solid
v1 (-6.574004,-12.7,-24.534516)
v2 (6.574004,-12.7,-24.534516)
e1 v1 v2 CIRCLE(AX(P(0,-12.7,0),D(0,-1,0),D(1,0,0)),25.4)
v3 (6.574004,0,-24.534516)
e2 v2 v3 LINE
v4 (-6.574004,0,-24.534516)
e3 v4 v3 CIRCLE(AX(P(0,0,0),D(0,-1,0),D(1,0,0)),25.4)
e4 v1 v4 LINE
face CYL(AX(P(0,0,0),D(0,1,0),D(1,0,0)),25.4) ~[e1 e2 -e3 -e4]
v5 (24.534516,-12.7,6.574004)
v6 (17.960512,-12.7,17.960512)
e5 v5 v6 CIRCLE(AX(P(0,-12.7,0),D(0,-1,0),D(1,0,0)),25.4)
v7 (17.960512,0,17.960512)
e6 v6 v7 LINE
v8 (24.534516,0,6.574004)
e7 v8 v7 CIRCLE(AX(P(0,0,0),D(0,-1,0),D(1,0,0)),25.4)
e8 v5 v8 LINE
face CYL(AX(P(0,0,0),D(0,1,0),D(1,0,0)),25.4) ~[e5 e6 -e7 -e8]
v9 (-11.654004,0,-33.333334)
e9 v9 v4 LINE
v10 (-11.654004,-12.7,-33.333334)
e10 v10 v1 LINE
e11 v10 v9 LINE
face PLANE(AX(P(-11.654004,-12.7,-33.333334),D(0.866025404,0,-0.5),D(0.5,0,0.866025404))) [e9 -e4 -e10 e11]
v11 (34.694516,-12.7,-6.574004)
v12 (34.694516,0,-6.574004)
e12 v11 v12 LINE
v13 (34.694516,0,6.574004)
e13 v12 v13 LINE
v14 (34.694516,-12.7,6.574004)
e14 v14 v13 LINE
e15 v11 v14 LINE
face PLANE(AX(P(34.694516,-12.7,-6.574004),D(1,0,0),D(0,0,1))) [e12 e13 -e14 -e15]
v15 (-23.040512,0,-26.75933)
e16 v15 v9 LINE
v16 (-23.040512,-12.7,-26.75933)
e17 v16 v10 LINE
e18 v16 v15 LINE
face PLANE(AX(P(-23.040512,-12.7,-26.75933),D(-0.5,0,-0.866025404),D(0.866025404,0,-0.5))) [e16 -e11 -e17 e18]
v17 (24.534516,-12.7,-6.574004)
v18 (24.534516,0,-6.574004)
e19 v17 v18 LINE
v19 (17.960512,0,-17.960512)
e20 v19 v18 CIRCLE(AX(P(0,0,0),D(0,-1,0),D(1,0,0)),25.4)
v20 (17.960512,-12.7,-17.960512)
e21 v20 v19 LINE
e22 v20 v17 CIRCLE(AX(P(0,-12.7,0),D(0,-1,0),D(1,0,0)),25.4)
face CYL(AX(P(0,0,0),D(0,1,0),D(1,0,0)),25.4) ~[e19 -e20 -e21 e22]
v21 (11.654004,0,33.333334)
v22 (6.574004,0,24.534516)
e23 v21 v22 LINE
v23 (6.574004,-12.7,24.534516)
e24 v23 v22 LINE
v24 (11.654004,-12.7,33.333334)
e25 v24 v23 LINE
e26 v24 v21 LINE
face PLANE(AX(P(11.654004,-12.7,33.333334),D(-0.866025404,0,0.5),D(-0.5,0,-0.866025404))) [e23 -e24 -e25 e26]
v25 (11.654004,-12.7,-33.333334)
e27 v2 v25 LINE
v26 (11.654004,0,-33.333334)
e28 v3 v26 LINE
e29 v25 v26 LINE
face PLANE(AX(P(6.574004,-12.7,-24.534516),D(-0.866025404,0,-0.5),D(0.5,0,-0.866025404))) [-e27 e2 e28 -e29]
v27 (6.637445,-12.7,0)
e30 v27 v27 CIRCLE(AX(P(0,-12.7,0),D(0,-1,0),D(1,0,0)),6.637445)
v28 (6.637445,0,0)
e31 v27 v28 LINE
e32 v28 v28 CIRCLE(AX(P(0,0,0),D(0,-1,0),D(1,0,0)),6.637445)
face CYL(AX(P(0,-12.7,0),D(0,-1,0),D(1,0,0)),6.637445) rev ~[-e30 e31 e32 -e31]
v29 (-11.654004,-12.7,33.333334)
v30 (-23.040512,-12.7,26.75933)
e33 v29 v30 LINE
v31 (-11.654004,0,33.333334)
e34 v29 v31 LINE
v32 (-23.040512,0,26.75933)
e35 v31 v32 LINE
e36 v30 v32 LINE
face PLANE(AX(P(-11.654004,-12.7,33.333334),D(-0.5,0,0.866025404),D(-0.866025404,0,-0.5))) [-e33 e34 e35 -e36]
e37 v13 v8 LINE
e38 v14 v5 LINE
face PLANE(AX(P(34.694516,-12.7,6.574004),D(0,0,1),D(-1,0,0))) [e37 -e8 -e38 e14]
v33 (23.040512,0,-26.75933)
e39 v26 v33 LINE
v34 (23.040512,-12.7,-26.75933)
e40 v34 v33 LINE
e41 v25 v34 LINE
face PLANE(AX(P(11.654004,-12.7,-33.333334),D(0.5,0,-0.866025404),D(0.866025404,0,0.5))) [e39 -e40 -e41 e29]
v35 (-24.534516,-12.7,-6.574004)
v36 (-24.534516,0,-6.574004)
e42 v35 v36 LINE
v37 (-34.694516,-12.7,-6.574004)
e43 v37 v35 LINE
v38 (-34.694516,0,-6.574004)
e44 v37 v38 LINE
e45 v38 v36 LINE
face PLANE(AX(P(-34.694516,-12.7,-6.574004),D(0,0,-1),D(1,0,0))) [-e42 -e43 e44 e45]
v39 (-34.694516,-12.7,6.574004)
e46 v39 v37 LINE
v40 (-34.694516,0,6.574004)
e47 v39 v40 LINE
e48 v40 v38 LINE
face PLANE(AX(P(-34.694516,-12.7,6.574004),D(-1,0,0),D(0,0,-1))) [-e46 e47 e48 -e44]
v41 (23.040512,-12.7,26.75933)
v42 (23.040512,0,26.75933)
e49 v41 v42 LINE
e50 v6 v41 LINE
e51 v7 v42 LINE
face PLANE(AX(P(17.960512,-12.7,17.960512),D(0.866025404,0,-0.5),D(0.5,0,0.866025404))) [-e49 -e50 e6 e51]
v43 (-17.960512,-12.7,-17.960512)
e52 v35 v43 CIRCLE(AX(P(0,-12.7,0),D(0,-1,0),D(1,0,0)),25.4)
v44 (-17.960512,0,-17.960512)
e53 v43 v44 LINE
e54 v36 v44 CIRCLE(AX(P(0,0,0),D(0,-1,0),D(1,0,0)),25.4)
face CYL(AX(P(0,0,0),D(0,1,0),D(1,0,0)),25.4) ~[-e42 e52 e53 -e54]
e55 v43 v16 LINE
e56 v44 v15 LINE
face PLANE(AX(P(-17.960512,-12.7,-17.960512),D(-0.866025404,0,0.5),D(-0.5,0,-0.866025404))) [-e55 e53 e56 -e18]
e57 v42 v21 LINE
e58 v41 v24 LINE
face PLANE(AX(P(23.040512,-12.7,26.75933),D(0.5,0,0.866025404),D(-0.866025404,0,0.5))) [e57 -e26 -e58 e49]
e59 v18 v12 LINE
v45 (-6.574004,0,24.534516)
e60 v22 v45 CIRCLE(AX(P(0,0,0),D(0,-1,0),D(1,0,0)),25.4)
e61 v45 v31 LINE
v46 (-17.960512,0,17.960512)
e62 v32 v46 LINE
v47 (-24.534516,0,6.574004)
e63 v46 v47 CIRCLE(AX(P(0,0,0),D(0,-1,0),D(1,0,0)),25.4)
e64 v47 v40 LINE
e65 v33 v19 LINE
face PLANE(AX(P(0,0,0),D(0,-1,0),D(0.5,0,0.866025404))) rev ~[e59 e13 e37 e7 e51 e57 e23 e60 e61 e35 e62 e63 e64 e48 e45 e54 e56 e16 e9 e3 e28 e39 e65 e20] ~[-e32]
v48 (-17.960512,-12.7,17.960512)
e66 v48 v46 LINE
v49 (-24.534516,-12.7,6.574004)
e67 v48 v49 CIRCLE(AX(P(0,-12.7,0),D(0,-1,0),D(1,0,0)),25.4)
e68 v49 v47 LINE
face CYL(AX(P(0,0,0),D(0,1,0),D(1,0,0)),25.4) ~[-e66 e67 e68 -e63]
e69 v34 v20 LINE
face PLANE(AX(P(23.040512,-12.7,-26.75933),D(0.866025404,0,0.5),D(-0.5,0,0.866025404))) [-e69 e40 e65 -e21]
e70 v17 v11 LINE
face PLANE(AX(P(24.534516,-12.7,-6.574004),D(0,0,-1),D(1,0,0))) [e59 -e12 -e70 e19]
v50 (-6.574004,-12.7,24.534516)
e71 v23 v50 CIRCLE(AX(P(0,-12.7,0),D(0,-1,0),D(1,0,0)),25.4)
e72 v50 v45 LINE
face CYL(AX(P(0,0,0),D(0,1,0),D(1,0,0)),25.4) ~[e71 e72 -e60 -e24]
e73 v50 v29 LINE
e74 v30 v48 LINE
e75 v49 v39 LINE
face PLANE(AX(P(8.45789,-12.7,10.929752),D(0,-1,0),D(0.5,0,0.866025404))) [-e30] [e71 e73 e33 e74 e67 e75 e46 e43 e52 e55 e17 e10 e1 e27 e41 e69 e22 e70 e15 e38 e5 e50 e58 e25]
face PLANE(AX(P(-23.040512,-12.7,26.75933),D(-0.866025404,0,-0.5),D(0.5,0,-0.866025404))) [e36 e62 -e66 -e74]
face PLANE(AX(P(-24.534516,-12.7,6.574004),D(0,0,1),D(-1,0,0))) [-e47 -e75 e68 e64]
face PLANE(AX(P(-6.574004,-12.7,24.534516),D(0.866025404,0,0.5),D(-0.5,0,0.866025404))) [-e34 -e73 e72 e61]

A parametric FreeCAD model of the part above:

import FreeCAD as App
import Part
import Sketcher
from FreeCAD import Vector
Q = App.Units.Quantity


def add_polygon(sketch, points):
    """Adds a closed chain of lines whose ends are joined by coincident constraints."""
    first, n = sketch.GeometryCount, len(points)
    for a, b in zip(points, points[1:] + points[:1]):
        sketch.addGeometry(Part.LineSegment(App.Vector(*a, 0), App.Vector(*b, 0)), False)
    for i in range(n):
        sketch.addConstraint(Sketcher.Constraint("Coincident", first + i, 2, first + (i + 1) % n, 1))

doc = App.newDocument("Part")
params = doc.addObject("Spreadsheet::Sheet", "Params")
for row, (alias, value) in enumerate([
    ("sketch1_diameter", "2 in"),
    ("pad1_length", "0.5 in"),
    ("sketch2_length", "1 in"),
    ("sketch2_width", "0.4 in"),
    ("pad2_length", "0.5 in"),
], start=1):
    params.set(f"A{row}", alias)
    params.set(f"B{row}", "=" + value)
    params.setAlias(f"B{row}", alias)

body = doc.addObject("PartDesign::Body", "Body")

sketch1 = body.newObject("Sketcher::SketchObject", "Sketch")
sketch1.AttachmentSupport = (doc.getObject("XZ_Plane"), [""])
sketch1.MapMode = "FlatFace"
sketch1.addGeometry(Part.Circle(Vector(0, 0, 0), Vector(0, 0, 1), 25), False)
sketch1.addConstraint([
    Sketcher.Constraint("Coincident", 0, 3, -1, 1),
    Sketcher.Constraint("Diameter", 0, Q("2 in")),
])
sketch1.setExpression("Constraints[1]", "Params.sketch1_diameter")
pad1 = body.newObject("PartDesign::Pad", "Pad")
pad1.Profile = sketch1
pad1.setExpression("Length", "Params.pad1_length")

sketch2 = body.newObject("Sketcher::SketchObject", "Sketch001")
sketch2.AttachmentSupport = (doc.getObject("XZ_Plane"), [""])
sketch2.MapMode = "FlatFace"
sketch2.AttachmentOffset = App.Placement(Vector(0, 0, 0.5 * 25.4), App.Rotation())
add_polygon(sketch2, [(0, 0), (25, -7), (35, -7), (35, 7), (25, 7)])
sketch2.addConstraint([
    Sketcher.Constraint("Horizontal", 1),
    Sketcher.Constraint("Vertical", 2),
    Sketcher.Constraint("Horizontal", 3),
    Sketcher.Constraint("Coincident", 4, 2, -1, 1),
    Sketcher.Constraint("Symmetric", 0, 2, 3, 2, -1),
    Sketcher.Constraint("Distance", 0, Q("1 in")),
    Sketcher.Constraint("DistanceX", 1, 1, 1, 2, Q("0.4 in")),
    Sketcher.Constraint("Angle", 0, Q("-15.000001 deg")),
])
sketch2.setExpression("Constraints[10]", "Params.sketch2_length")
sketch2.setExpression("Constraints[11]", "Params.sketch2_width")
pad2 = body.newObject("PartDesign::Pad", "Pad001")
pad2.Profile = sketch2
pad2.setExpression("Length", "Params.pad2_length")
pad2.Reversed = True
body2 = doc.addObject("PartDesign::Body", "Body001")
doc.recompute()

body2.BaseFeature = body
doc.recompute()

body3 = doc.addObject("PartDesign::Body", "Body002")
body3.BaseFeature = body
body3.Placement = App.Placement(Vector(0, 0, 0), App.Rotation(Vector(0, 1, 0), 60))
boolean = body2.newObject("PartDesign::Boolean", "Boolean")
boolean.Type = "Fuse"
boolean.addObjects([body3])
doc.recompute()

body4 = doc.addObject("PartDesign::Body", "Body003")
body4.BaseFeature = body
body4.Placement = App.Placement(Vector(0, 0, 0), App.Rotation(Vector(0, 1, 0), 120))
boolean2 = body2.newObject("PartDesign::Boolean", "Boolean001")
boolean2.Type = "Fuse"
boolean2.addObjects([body4])
doc.recompute()

body5 = doc.addObject("PartDesign::Body", "Body004")
body5.BaseFeature = body
body5.Placement = App.Placement(Vector(0, 0, 0), App.Rotation(Vector(0, 1, 0), 180))
boolean3 = body2.newObject("PartDesign::Boolean", "Boolean002")
boolean3.Type = "Fuse"
boolean3.addObjects([body5])
doc.recompute()

body6 = doc.addObject("PartDesign::Body", "Body005")
body6.BaseFeature = body
body6.Placement = App.Placement(Vector(0, 0, 0), App.Rotation(Vector(0, 1, 0), 240))
boolean4 = body2.newObject("PartDesign::Boolean", "Boolean003")
boolean4.Type = "Fuse"
boolean4.addObjects([body6])
doc.recompute()

body.Placement = App.Placement(Vector(0, 0, 0), App.Rotation(Vector(0, 1, 0), 300))
boolean5 = body2.newObject("PartDesign::Boolean", "Boolean004")
boolean5.Type = "Fuse"
boolean5.addObjects([body])

sketch3 = body2.newObject("Sketcher::SketchObject", "Sketch002")
sketch3.AttachmentSupport = (doc.getObject("XZ_Plane001"), [""])
sketch3.MapMode = "FlatFace"
sketch3.AttachmentOffset = App.Placement(Vector(0, 0, 0.5 * 25.4), App.Rotation())
sketch3.addGeometry(Part.Circle(Vector(0, 0, 0), Vector(0, 0, 1), 7), False)
sketch3.addConstraint([
    Sketcher.Constraint("Coincident", 0, 3, -1, 1),
    Sketcher.Constraint("Diameter", 0, Q("13.27489 mm")),
])
pocket1 = body2.newObject("PartDesign::Pocket", "Pocket")
pocket1.Profile = sketch3
pocket1.Type = "ThroughAll"

doc.recompute()
